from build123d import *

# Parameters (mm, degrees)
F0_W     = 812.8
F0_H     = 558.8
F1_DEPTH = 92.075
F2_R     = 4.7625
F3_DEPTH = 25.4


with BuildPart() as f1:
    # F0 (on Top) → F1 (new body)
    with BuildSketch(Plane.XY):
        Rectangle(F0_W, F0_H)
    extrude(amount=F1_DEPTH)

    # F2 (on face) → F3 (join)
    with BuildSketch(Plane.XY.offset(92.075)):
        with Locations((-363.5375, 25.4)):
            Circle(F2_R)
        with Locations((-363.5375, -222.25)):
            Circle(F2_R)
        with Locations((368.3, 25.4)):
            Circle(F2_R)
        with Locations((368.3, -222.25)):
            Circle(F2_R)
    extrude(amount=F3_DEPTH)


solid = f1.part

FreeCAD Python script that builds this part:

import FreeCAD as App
import Part
import Sketcher
from FreeCAD import Vector
Q = App.Units.Quantity

doc = App.newDocument("Part")
params = doc.addObject("Spreadsheet::Sheet", "Params")
for row, (alias, value) in enumerate([
    ("sketch1_width", "32 in"),
    ("sketch1_height", "22 in"),
    ("pad1_length", "3.625 in"),
    ("sketch2_diameter", "0.375 in"),
    ("pad2_length", "1 in"),
], start=1):
    params.set(f"A{row}", alias)
    params.set(f"B{row}", "=" + value)
    params.setAlias(f"B{row}", alias)

body = doc.addObject("PartDesign::Body", "Body")

# Sketch on XY plane
sketch1 = body.newObject("Sketcher::SketchObject", "Sketch")
sketch1.AttachmentSupport = (doc.getObject("XY_Plane"), [""])
sketch1.MapMode = "FlatFace"
sketch1.addGeometry(Part.LineSegment(Vector(-406, 279, 0), Vector(-406, -279, 0)), False)
sketch1.addGeometry(Part.LineSegment(Vector(-406, -279, 0), Vector(406, -279, 0)), False)
sketch1.addGeometry(Part.LineSegment(Vector(406, -279, 0), Vector(406, 279, 0)), False)
sketch1.addGeometry(Part.LineSegment(Vector(406, 279, 0), Vector(-406, 279, 0)), False)
sketch1.addConstraint(Sketcher.Constraint("Coincident", 0, 2, 1, 1))
sketch1.addConstraint(Sketcher.Constraint("Coincident", 1, 2, 2, 1))
sketch1.addConstraint(Sketcher.Constraint("Coincident", 2, 2, 3, 1))
sketch1.addConstraint(Sketcher.Constraint("Coincident", 3, 2, 0, 1))
sketch1.addConstraint(Sketcher.Constraint("Vertical", 0))
sketch1.addConstraint(Sketcher.Constraint("Horizontal", 1))
sketch1.addConstraint(Sketcher.Constraint("Vertical", 2))
sketch1.addConstraint(Sketcher.Constraint("Horizontal", 3))
sketch1.addConstraint(Sketcher.Constraint("Symmetric", 0, 2, 2, 2, -1, 1))
sketch1.addConstraint(Sketcher.Constraint("DistanceX", 1, 1, 1, 2, Q("32 in")))
sketch1.addConstraint(Sketcher.Constraint("DistanceY", 0, 2, 0, 1, Q("22 in")))
sketch1.setExpression("Constraints[9]", "Params.sketch1_width")
sketch1.setExpression("Constraints[10]", "Params.sketch1_height")
pad1 = body.newObject("PartDesign::Pad", "Pad")
pad1.Profile = sketch1
pad1.setExpression("Length", "Params.pad1_length")

# Sketch on XY plane
sketch2 = body.newObject("Sketcher::SketchObject", "Sketch001")
sketch2.AttachmentSupport = (doc.getObject("XY_Plane"), [""])
sketch2.MapMode = "FlatFace"
sketch2.AttachmentOffset = App.Placement(Vector(0, 0, 3.625 * 25.4), App.Rotation())
sketch2.addGeometry(Part.Circle(Vector(-363.5, 25.4, 0), Vector(0, 0, 1), 4.8), False)
sketch2.addGeometry(Part.Circle(Vector(-363.5, -222.2, 0), Vector(0, 0, 1), 4.8), False)
sketch2.addGeometry(Part.Circle(Vector(368.3, 25.4, 0), Vector(0, 0, 1), 4.8), False)
sketch2.addGeometry(Part.Circle(Vector(368.3, -222.2, 0), Vector(0, 0, 1), 4.8), False)
sketch2.addConstraint(Sketcher.Constraint("Equal", 0, 1))
sketch2.addConstraint(Sketcher.Constraint("Equal", 1, 2))
sketch2.addConstraint(Sketcher.Constraint("Equal", 2, 3))
sketch2.addConstraint(Sketcher.Constraint("Horizontal", 0, 3, 2, 3))
sketch2.addConstraint(Sketcher.Constraint("Horizontal", 1, 3, 3, 3))
sketch2.addConstraint(Sketcher.Constraint("Vertical", 0, 3, 1, 3))
sketch2.addConstraint(Sketcher.Constraint("Vertical", 2, 3, 3, 3))
sketch2.addConstraint(Sketcher.Constraint("Diameter", 0, Q("0.375 in")))
sketch2.addConstraint(Sketcher.Constraint("DistanceY", -1, 1, 0, 3, Q("1 in")))
sketch2.addConstraint(Sketcher.Constraint("DistanceX", -1, 1, 2, 3, Q("14.5 in")))
sketch2.addConstraint(Sketcher.Constraint("DistanceY", 1, 3, -1, 1, Q("8.75 in")))
sketch2.addConstraint(Sketcher.Constraint("DistanceX", 0, 3, -1, 1, Q("14.3125 in")))
sketch2.setExpression("Constraints[7]", "Params.sketch2_diameter")
pad2 = body.newObject("PartDesign::Pad", "Pad001")
pad2.Profile = sketch2
pad2.setExpression("Length", "Params.pad2_length")

doc.recompute()
